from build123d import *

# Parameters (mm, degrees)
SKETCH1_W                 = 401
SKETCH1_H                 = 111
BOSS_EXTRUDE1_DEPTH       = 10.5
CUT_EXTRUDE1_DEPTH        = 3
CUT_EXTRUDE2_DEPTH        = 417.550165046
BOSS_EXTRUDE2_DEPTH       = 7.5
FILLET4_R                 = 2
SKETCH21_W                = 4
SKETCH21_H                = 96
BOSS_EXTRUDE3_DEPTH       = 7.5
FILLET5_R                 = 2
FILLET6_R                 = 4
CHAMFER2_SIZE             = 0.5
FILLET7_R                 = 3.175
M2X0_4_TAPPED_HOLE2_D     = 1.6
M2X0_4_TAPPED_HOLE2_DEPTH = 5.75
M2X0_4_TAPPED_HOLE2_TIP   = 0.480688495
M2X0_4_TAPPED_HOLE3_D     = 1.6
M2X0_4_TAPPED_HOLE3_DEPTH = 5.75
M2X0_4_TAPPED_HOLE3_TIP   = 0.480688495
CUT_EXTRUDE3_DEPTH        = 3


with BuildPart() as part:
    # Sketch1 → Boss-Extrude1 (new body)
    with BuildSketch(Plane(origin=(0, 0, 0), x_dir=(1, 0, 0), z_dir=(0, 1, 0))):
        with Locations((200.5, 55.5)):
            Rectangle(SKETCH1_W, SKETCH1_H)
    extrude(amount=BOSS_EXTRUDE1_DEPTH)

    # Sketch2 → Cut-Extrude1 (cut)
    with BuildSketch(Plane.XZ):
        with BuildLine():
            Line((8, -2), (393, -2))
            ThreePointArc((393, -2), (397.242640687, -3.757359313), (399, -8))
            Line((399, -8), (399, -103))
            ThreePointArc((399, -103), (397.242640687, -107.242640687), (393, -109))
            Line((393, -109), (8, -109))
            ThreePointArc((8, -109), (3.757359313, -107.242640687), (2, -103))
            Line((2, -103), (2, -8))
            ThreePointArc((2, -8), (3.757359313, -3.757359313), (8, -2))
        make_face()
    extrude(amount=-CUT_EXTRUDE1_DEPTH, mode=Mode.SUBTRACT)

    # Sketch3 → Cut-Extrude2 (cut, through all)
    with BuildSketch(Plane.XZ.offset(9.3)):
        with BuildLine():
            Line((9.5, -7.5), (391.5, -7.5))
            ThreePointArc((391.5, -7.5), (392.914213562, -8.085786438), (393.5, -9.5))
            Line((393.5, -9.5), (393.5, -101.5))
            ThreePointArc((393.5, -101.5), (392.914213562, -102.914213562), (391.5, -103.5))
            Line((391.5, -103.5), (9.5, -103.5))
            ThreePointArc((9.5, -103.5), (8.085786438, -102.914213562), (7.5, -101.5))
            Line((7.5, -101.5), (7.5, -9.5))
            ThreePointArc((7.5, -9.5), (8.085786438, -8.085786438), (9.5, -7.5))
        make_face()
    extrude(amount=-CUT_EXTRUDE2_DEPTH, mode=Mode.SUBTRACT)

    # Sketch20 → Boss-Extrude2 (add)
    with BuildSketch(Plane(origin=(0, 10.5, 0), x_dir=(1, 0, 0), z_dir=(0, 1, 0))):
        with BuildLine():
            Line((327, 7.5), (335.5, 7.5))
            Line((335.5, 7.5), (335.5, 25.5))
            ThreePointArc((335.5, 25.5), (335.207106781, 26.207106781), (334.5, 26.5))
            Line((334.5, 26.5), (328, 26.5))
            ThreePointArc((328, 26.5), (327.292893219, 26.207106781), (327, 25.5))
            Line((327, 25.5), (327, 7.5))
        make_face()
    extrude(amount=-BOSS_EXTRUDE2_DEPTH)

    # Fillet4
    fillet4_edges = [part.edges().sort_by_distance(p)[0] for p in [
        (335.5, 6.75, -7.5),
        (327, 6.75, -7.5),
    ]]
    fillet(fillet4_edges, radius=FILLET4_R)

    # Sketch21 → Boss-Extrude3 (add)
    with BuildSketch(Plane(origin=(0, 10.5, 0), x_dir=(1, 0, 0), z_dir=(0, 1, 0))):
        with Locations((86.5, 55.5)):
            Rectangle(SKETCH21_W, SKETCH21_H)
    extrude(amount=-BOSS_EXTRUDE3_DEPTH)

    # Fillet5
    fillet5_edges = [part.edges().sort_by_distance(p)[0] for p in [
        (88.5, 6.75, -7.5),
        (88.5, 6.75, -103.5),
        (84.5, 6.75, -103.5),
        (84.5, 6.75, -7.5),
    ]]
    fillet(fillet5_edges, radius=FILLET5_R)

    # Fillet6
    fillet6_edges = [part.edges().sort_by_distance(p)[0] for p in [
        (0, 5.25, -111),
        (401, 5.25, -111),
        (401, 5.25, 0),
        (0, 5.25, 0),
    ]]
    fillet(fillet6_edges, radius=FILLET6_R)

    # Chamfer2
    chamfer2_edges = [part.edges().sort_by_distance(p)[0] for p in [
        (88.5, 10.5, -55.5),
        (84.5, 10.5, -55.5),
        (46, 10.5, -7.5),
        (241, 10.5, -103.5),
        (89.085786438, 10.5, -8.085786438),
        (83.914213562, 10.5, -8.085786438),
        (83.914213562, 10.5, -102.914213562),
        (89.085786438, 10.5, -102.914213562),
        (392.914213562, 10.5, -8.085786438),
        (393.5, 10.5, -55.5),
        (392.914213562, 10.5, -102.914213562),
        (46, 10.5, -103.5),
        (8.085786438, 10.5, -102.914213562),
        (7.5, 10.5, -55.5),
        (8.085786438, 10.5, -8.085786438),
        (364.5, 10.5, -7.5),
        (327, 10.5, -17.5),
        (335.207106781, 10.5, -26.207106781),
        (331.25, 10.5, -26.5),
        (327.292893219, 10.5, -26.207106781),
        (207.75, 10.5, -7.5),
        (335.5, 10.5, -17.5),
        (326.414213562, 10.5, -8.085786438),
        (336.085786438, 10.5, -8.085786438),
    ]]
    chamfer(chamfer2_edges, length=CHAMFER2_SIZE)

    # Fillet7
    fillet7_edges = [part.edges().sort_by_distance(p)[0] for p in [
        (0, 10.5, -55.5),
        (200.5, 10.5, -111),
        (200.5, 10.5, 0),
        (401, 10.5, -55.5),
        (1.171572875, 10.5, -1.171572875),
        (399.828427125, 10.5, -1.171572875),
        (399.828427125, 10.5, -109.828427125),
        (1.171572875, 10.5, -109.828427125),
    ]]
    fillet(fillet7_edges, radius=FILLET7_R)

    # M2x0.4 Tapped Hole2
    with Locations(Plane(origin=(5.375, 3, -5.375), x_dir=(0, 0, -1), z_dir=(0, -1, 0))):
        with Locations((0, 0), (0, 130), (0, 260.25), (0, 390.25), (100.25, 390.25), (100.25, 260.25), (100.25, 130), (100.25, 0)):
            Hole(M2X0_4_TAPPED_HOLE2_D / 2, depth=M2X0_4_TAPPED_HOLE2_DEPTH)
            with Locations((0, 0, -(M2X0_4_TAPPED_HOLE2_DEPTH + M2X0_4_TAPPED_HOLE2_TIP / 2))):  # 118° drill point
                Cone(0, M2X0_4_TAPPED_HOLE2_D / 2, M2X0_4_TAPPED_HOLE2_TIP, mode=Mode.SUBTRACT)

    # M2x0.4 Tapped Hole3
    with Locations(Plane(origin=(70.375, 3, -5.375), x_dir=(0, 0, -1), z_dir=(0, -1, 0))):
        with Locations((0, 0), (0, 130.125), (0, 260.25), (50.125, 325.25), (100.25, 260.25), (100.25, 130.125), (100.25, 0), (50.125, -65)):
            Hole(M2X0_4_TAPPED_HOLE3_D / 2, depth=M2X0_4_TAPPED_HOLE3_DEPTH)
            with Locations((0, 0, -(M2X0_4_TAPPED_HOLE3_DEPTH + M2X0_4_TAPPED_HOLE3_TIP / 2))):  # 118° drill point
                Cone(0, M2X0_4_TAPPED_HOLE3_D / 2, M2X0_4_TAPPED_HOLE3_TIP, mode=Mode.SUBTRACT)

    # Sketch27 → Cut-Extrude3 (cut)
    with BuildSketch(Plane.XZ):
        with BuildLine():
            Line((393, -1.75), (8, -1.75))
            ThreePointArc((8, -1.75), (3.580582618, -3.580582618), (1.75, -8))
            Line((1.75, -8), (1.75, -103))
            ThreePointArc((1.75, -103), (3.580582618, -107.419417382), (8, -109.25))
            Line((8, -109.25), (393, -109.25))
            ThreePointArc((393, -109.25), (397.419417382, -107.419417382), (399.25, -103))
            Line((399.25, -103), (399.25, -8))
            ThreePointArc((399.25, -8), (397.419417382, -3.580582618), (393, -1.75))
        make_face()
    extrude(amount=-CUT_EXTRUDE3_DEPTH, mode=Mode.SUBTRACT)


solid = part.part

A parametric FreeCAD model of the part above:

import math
import FreeCAD as App
import Part
import Sketcher
from FreeCAD import Vector
Q = App.Units.Quantity


def edges_at(feature, points):
    """Names of the edges that pass closest to the given points."""
    edges = feature.Shape.Edges
    near = lambda p: min(range(len(edges)), key=lambda i: edges[i].distToShape(Part.Vertex(*p))[0])
    return sorted({f"Edge{near(p) + 1}" for p in points})


def add_polygon(sketch, points):
    """Adds a closed chain of lines whose ends are joined by coincident constraints."""
    first, n = sketch.GeometryCount, len(points)
    for a, b in zip(points, points[1:] + points[:1]):
        sketch.addGeometry(Part.LineSegment(App.Vector(*a, 0), App.Vector(*b, 0)), False)
    for i in range(n):
        sketch.addConstraint(Sketcher.Constraint("Coincident", first + i, 2, first + (i + 1) % n, 1))

doc = App.newDocument("Part")
body = doc.addObject("PartDesign::Body", "Body")

# Sketch on XZ plane
sketch1 = doc.addObject("Sketcher::SketchObject", "Sketch")
body.addObject(sketch1)
sketch1.AttachmentSupport = (doc.XZ_Plane, [""])
sketch1.MapMode = "FlatFace"
add_polygon(sketch1, [(0, -111), (0, 0), (401, 0), (401, -111)])  # lines 0-3
sketch1.addConstraint([
    Sketcher.Constraint("Vertical", 0),
    Sketcher.Constraint("Horizontal", 1),
    Sketcher.Constraint("Vertical", 2),
    Sketcher.Constraint("Horizontal", 3),
    Sketcher.Constraint("Coincident", 0, 2, -1, 1),
    Sketcher.Constraint("DistanceX", 1, 1, 1, 2, Q("401 mm")),
    Sketcher.Constraint("DistanceY", 0, 1, 0, 2, Q("111 mm")),
])
pad1 = doc.addObject("PartDesign::Pad", "Pad")
body.addObject(pad1)
pad1.Profile = sketch1
pad1.Length = 10.5
pad1.Reversed = True

# Sketch on XZ plane
sketch2 = doc.addObject("Sketcher::SketchObject", "Sketch001")
body.addObject(sketch2)
sketch2.AttachmentSupport = (doc.XZ_Plane, [""])
sketch2.MapMode = "FlatFace"
sketch2.addGeometry([
    Part.LineSegment(Vector(393, -2, 0), Vector(8, -2, 0)),  # 0
    Part.ArcOfCircle(Part.Circle(Vector(8, -8, 0), Vector(0, 0, 1), 6), math.radians(90), math.radians(180)),  # 1
    Part.LineSegment(Vector(2, -8, 0), Vector(2, -103, 0)),  # 2
    Part.ArcOfCircle(Part.Circle(Vector(8, -103, 0), Vector(0, 0, 1), 6), math.radians(180), math.radians(270)),  # 3
    Part.LineSegment(Vector(8, -109, 0), Vector(393, -109, 0)),  # 4
    Part.ArcOfCircle(Part.Circle(Vector(393, -103, 0), Vector(0, 0, 1), 6), math.radians(-90), math.radians(0)),  # 5
    Part.LineSegment(Vector(399, -103, 0), Vector(399, -8, 0)),  # 6
    Part.ArcOfCircle(Part.Circle(Vector(393, -8, 0), Vector(0, 0, 1), 6), math.radians(0), math.radians(90)),  # 7
], False)
sketch2.addConstraint([
    Sketcher.Constraint("Tangent", 0, 2, 1, 1),
    Sketcher.Constraint("Tangent", 1, 2, 2, 1),
    Sketcher.Constraint("Tangent", 2, 2, 3, 1),
    Sketcher.Constraint("Tangent", 3, 2, 4, 1),
    Sketcher.Constraint("Tangent", 4, 2, 5, 1),
    Sketcher.Constraint("Tangent", 5, 2, 6, 1),
    Sketcher.Constraint("Tangent", 6, 2, 7, 1),
    Sketcher.Constraint("Tangent", 7, 2, 0, 1),
    Sketcher.Constraint("Horizontal", 0),
    Sketcher.Constraint("Vertical", 2),
    Sketcher.Constraint("Horizontal", 4),
    Sketcher.Constraint("Vertical", 6),
    Sketcher.Constraint("Equal", 1, 3),
    Sketcher.Constraint("Equal", 3, 5),
    Sketcher.Constraint("Equal", 5, 7),
    Sketcher.Constraint("Radius", 1, Q("6 mm")),
    Sketcher.Constraint("DistanceX", 0, 2, 0, 1, Q("385 mm")),
    Sketcher.Constraint("DistanceY", 2, 2, 2, 1, Q("95 mm")),
    Sketcher.Constraint("DistanceX", -1, 1, 1, 3, Q("8 mm")),
    Sketcher.Constraint("DistanceY", 1, 3, -1, 1, Q("8 mm")),
])
pocket1 = doc.addObject("PartDesign::Pocket", "Pocket")
body.addObject(pocket1)
pocket1.Profile = sketch2
pocket1.Length = 3

# Sketch on XZ plane
sketch3 = doc.addObject("Sketcher::SketchObject", "Sketch002")
body.addObject(sketch3)
sketch3.AttachmentSupport = (doc.XZ_Plane, [""])
sketch3.MapMode = "FlatFace"
sketch3.AttachmentOffset = App.Placement(Vector(0, 0, 9.3), App.Rotation())
sketch3.addGeometry([
    Part.LineSegment(Vector(391.5, -7.5, 0), Vector(9.5, -7.5, 0)),  # 0
    Part.ArcOfCircle(Part.Circle(Vector(9.5, -9.5, 0), Vector(0, 0, 1), 2), math.radians(90), math.radians(180)),  # 1
    Part.LineSegment(Vector(7.5, -9.5, 0), Vector(7.5, -101.5, 0)),  # 2
    Part.ArcOfCircle(Part.Circle(Vector(9.5, -101.5, 0), Vector(0, 0, 1), 2), math.radians(-180), math.radians(-90)),  # 3
    Part.LineSegment(Vector(9.5, -103.5, 0), Vector(391.5, -103.5, 0)),  # 4
    Part.ArcOfCircle(Part.Circle(Vector(391.5, -101.5, 0), Vector(0, 0, 1), 2), math.radians(-90), math.radians(0)),  # 5
    Part.LineSegment(Vector(393.5, -101.5, 0), Vector(393.5, -9.5, 0)),  # 6
    Part.ArcOfCircle(Part.Circle(Vector(391.5, -9.5, 0), Vector(0, 0, 1), 2), math.radians(0), math.radians(90)),  # 7
], False)
sketch3.addConstraint([
    Sketcher.Constraint("Tangent", 0, 2, 1, 1),
    Sketcher.Constraint("Tangent", 1, 2, 2, 1),
    Sketcher.Constraint("Tangent", 2, 2, 3, 1),
    Sketcher.Constraint("Tangent", 3, 2, 4, 1),
    Sketcher.Constraint("Tangent", 4, 2, 5, 1),
    Sketcher.Constraint("Tangent", 5, 2, 6, 1),
    Sketcher.Constraint("Tangent", 6, 2, 7, 1),
    Sketcher.Constraint("Tangent", 7, 2, 0, 1),
    Sketcher.Constraint("Horizontal", 0),
    Sketcher.Constraint("Vertical", 2),
    Sketcher.Constraint("Horizontal", 4),
    Sketcher.Constraint("Vertical", 6),
    Sketcher.Constraint("Equal", 1, 3),
    Sketcher.Constraint("Equal", 3, 5),
    Sketcher.Constraint("Equal", 5, 7),
    Sketcher.Constraint("Radius", 1, Q("2 mm")),
    Sketcher.Constraint("DistanceX", 0, 2, 0, 1, Q("382 mm")),
    Sketcher.Constraint("DistanceY", 2, 2, 2, 1, Q("92 mm")),
    Sketcher.Constraint("DistanceX", -1, 1, 1, 3, Q("9.5 mm")),
    Sketcher.Constraint("DistanceY", 1, 3, -1, 1, Q("9.5 mm")),
])
pocket2 = doc.addObject("PartDesign::Pocket", "Pocket001")
body.addObject(pocket2)
pocket2.Profile = sketch3
pocket2.Type = "ThroughAll"

# Sketch on XZ plane
sketch4 = doc.addObject("Sketcher::SketchObject", "Sketch003")
body.addObject(sketch4)
sketch4.AttachmentSupport = (doc.XZ_Plane, [""])
sketch4.MapMode = "FlatFace"
sketch4.AttachmentOffset = App.Placement(Vector(0, 0, -10.5), App.Rotation())
sketch4.addGeometry([
    Part.LineSegment(Vector(327, -7.5, 0), Vector(335.5, -7.5, 0)),  # 0
    Part.LineSegment(Vector(335.5, -7.5, 0), Vector(335.5, -25.5, 0)),  # 1
    Part.ArcOfCircle(Part.Circle(Vector(334.5, -25.5, 0), Vector(0, 0, 1), 1), math.radians(-90), math.radians(0)),  # 2
    Part.LineSegment(Vector(334.5, -26.5, 0), Vector(328, -26.5, 0)),  # 3
    Part.ArcOfCircle(Part.Circle(Vector(328, -25.5, 0), Vector(0, 0, 1), 1), math.radians(-180), math.radians(-90)),  # 4
    Part.LineSegment(Vector(327, -25.5, 0), Vector(327, -7.5, 0)),  # 5
], False)
sketch4.addConstraint([
    Sketcher.Constraint("Coincident", 0, 2, 1, 1),
    Sketcher.Constraint("Tangent", 1, 2, 2, 2),
    Sketcher.Constraint("Tangent", 2, 1, 3, 1),
    Sketcher.Constraint("Tangent", 3, 2, 4, 2),
    Sketcher.Constraint("Tangent", 4, 1, 5, 1),
    Sketcher.Constraint("Coincident", 5, 2, 0, 1),
    Sketcher.Constraint("Horizontal", 0),
    Sketcher.Constraint("Vertical", 1),
    Sketcher.Constraint("Horizontal", 3),
    Sketcher.Constraint("Vertical", 5),
    Sketcher.Constraint("Equal", 2, 4),
    Sketcher.Constraint("Radius", 2, Q("1 mm")),
    Sketcher.Constraint("DistanceY", 1, 2, 1, 1, Q("18 mm")),
    Sketcher.Constraint("DistanceX", 0, 1, 0, 2, Q("8.5 mm")),
    Sketcher.Constraint("DistanceX", -1, 1, 4, 3, Q("328 mm")),
    Sketcher.Constraint("DistanceY", 2, 3, -1, 1, Q("25.5 mm")),
])
pad2 = doc.addObject("PartDesign::Pad", "Pad001")
body.addObject(pad2)
pad2.Profile = sketch4
pad2.Length = 7.5
doc.recompute()

fillet = doc.addObject("PartDesign::Fillet", "Fillet")
body.addObject(fillet)
fillet.Base = (pad2, edges_at(pad2, [(335.5, 6.75, -7.5), (327, 6.75, -7.5)]))
fillet.Radius = 2

# Sketch on XZ plane
sketch5 = doc.addObject("Sketcher::SketchObject", "Sketch004")
body.addObject(sketch5)
sketch5.AttachmentSupport = (doc.XZ_Plane, [""])
sketch5.MapMode = "FlatFace"
sketch5.AttachmentOffset = App.Placement(Vector(0, 0, -10.5), App.Rotation())
add_polygon(sketch5, [(84.5, -103.5), (84.5, -7.5), (88.5, -7.5), (88.5, -103.5)])  # lines 0-3
sketch5.addConstraint([
    Sketcher.Constraint("Vertical", 0),
    Sketcher.Constraint("Horizontal", 1),
    Sketcher.Constraint("Vertical", 2),
    Sketcher.Constraint("Horizontal", 3),
    Sketcher.Constraint("DistanceX", 1, 1, 1, 2, Q("4 mm")),
    Sketcher.Constraint("DistanceY", 0, 1, 0, 2, Q("96 mm")),
    Sketcher.Constraint("DistanceX", -1, 1, 0, 2, Q("84.5 mm")),
    Sketcher.Constraint("DistanceY", 0, 2, -1, 1, Q("7.5 mm")),
])
pad3 = doc.addObject("PartDesign::Pad", "Pad002")
body.addObject(pad3)
pad3.Profile = sketch5
pad3.Length = 7.5
doc.recompute()

fillet2 = doc.addObject("PartDesign::Fillet", "Fillet001")
body.addObject(fillet2)
fillet2.Base = (pad3, edges_at(pad3, [
    (88.5, 6.75, -7.5),
    (88.5, 6.75, -103.5),
    (84.5, 6.75, -103.5),
    (84.5, 6.75, -7.5),
]))
fillet2.Radius = 2
doc.recompute()

fillet3 = doc.addObject("PartDesign::Fillet", "Fillet002")
body.addObject(fillet3)
fillet3.Base = (fillet2, edges_at(fillet2, [
    (0, 5.25, -111),
    (401, 5.25, -111),
    (401, 5.25, 0),
    (0, 5.25, 0),
]))
fillet3.Radius = 4
doc.recompute()

chamfer = doc.addObject("PartDesign::Chamfer", "Chamfer")
body.addObject(chamfer)
chamfer.Base = (fillet3, edges_at(fillet3, [
    (88.5, 10.5, -55.5),
    (84.5, 10.5, -55.5),
    (46, 10.5, -7.5),
    (241, 10.5, -103.5),
    (89.086, 10.5, -8.086),
    (83.914, 10.5, -8.086),
    (83.914, 10.5, -102.914),
    (89.086, 10.5, -102.914),
    (392.914, 10.5, -8.086),
    (393.5, 10.5, -55.5),
    (392.914, 10.5, -102.914),
    (46, 10.5, -103.5),
    (8.086, 10.5, -102.914),
    (7.5, 10.5, -55.5),
    (8.086, 10.5, -8.086),
    (364.5, 10.5, -7.5),
    (327, 10.5, -17.5),
    (335.207, 10.5, -26.207),
    (331.25, 10.5, -26.5),
    (327.293, 10.5, -26.207),
    (207.75, 10.5, -7.5),
    (335.5, 10.5, -17.5),
    (326.414, 10.5, -8.086),
    (336.086, 10.5, -8.086),
]))
chamfer.Size = 0.5
doc.recompute()

fillet4 = doc.addObject("PartDesign::Fillet", "Fillet003")
body.addObject(fillet4)
fillet4.Base = (chamfer, edges_at(chamfer, [
    (0, 10.5, -55.5),
    (200.5, 10.5, -111),
    (200.5, 10.5, 0),
    (401, 10.5, -55.5),
    (1.172, 10.5, -1.172),
    (399.828, 10.5, -1.172),
    (399.828, 10.5, -109.828),
    (1.172, 10.5, -109.828),
]))
fillet4.Radius = 3.175

# Sketch on XZ plane
sketch6 = doc.addObject("Sketcher::SketchObject", "Sketch005")
body.addObject(sketch6)
sketch6.AttachmentSupport = (doc.XZ_Plane, [""])
sketch6.MapMode = "FlatFace"
sketch6.AttachmentOffset = App.Placement(Vector(0, 0, -3), App.Rotation())
sketch6.addGeometry([
    Part.Circle(Vector(5.4, -5.4, 0), Vector(0, 0, 1), 0.8),  # 0
    Part.Circle(Vector(135.4, -5.4, 0), Vector(0, 0, 1), 0.8),  # 1
    Part.Circle(Vector(265.6, -5.4, 0), Vector(0, 0, 1), 0.8),  # 2
    Part.Circle(Vector(395.6, -5.4, 0), Vector(0, 0, 1), 0.8),  # 3
    Part.Circle(Vector(395.6, -105.6, 0), Vector(0, 0, 1), 0.8),  # 4
    Part.Circle(Vector(265.6, -105.6, 0), Vector(0, 0, 1), 0.8),  # 5
    Part.Circle(Vector(135.4, -105.6, 0), Vector(0, 0, 1), 0.8),  # 6
    Part.Circle(Vector(5.4, -105.6, 0), Vector(0, 0, 1), 0.8),  # 7
], False)
sketch6.addConstraint([
    Sketcher.Constraint("Equal", 0, 1),
    Sketcher.Constraint("Equal", 1, 2),
    Sketcher.Constraint("Equal", 2, 3),
    Sketcher.Constraint("Equal", 3, 4),
    Sketcher.Constraint("Equal", 4, 5),
    Sketcher.Constraint("Equal", 5, 6),
    Sketcher.Constraint("Equal", 6, 7),
    Sketcher.Constraint("Horizontal", 0, 3, 1, 3),
    Sketcher.Constraint("Horizontal", 1, 3, 2, 3),
    Sketcher.Constraint("Horizontal", 2, 3, 3, 3),
    Sketcher.Constraint("Horizontal", 4, 3, 5, 3),
    Sketcher.Constraint("Horizontal", 5, 3, 6, 3),
    Sketcher.Constraint("Horizontal", 6, 3, 7, 3),
    Sketcher.Constraint("Vertical", 3, 3, 4, 3),
    Sketcher.Constraint("Vertical", 2, 3, 5, 3),
    Sketcher.Constraint("Vertical", 1, 3, 6, 3),
    Sketcher.Constraint("Vertical", 0, 3, 7, 3),
    Sketcher.Constraint("Diameter", 0, Q("1.6 mm")),
    Sketcher.Constraint("DistanceX", 0, 3, 1, 3, Q("130 mm")),
    Sketcher.Constraint("DistanceX", 2, 3, 3, 3, Q("130 mm")),
    Sketcher.Constraint("DistanceX", 1, 3, 2, 3, Q("130.25 mm")),
    Sketcher.Constraint("DistanceY", 4, 3, 3, 3, Q("100.25 mm")),
    Sketcher.Constraint("DistanceX", -1, 1, 0, 3, Q("5.375 mm")),
    Sketcher.Constraint("DistanceY", 0, 3, -1, 1, Q("5.375 mm")),
])
doc.recompute()
hole = doc.addObject("PartDesign::Hole", "Hole")
body.addObject(hole)
hole.Profile = sketch6
hole.ThreadType = "None"
hole.Diameter = 1.6
hole.DepthType = "Dimension"
hole.Depth = 5.75
hole.DrillPoint = "Angled"
hole.DrillPointAngle = 118

# Sketch on XZ plane
sketch7 = doc.addObject("Sketcher::SketchObject", "Sketch006")
body.addObject(sketch7)
sketch7.AttachmentSupport = (doc.XZ_Plane, [""])
sketch7.MapMode = "FlatFace"
sketch7.AttachmentOffset = App.Placement(Vector(0, 0, -3), App.Rotation())
sketch7.addGeometry([
    Part.Circle(Vector(70.4, -5.4, 0), Vector(0, 0, 1), 0.8),  # 0
    Part.Circle(Vector(200.5, -5.4, 0), Vector(0, 0, 1), 0.8),  # 1
    Part.Circle(Vector(330.6, -5.4, 0), Vector(0, 0, 1), 0.8),  # 2
    Part.Circle(Vector(395.6, -55.5, 0), Vector(0, 0, 1), 0.8),  # 3
    Part.Circle(Vector(330.6, -105.6, 0), Vector(0, 0, 1), 0.8),  # 4
    Part.Circle(Vector(200.5, -105.6, 0), Vector(0, 0, 1), 0.8),  # 5
    Part.Circle(Vector(70.4, -105.6, 0), Vector(0, 0, 1), 0.8),  # 6
    Part.Circle(Vector(5.4, -55.5, 0), Vector(0, 0, 1), 0.8),  # 7
], False)
sketch7.addConstraint([
    Sketcher.Constraint("Equal", 0, 1),
    Sketcher.Constraint("Equal", 1, 2),
    Sketcher.Constraint("Equal", 2, 3),
    Sketcher.Constraint("Equal", 3, 4),
    Sketcher.Constraint("Equal", 4, 5),
    Sketcher.Constraint("Equal", 5, 6),
    Sketcher.Constraint("Equal", 6, 7),
    Sketcher.Constraint("Horizontal", 0, 3, 1, 3),
    Sketcher.Constraint("Horizontal", 1, 3, 2, 3),
    Sketcher.Constraint("Horizontal", 4, 3, 5, 3),
    Sketcher.Constraint("Horizontal", 5, 3, 6, 3),
    Sketcher.Constraint("Horizontal", 3, 3, 7, 3),
    Sketcher.Constraint("Vertical", 2, 3, 4, 3),
    Sketcher.Constraint("Vertical", 1, 3, 5, 3),
    Sketcher.Constraint("Vertical", 0, 3, 6, 3),
    Sketcher.Constraint("Diameter", 0, Q("1.6 mm")),
    Sketcher.Constraint("DistanceX", 2, 3, 3, 3, Q("65 mm")),
    Sketcher.Constraint("DistanceX", 7, 3, 0, 3, Q("65 mm")),
    Sketcher.Constraint("DistanceX", -1, 1, 1, 3, Q("200.5 mm")),
    Sketcher.Constraint("DistanceY", 3, 3, -1, 1, Q("55.5 mm")),
    Sketcher.Constraint("DistanceX", 0, 3, 2, 3, Q("260.25 mm")),
    Sketcher.Constraint("DistanceY", 4, 3, 2, 3, Q("100.25 mm")),
    Sketcher.Constraint("DistanceX", -1, 1, 0, 3, Q("70.375 mm")),
    Sketcher.Constraint("DistanceY", 0, 3, -1, 1, Q("5.375 mm")),
])
doc.recompute()
hole2 = doc.addObject("PartDesign::Hole", "Hole001")
body.addObject(hole2)
hole2.Profile = sketch7
hole2.ThreadType = "None"
hole2.Diameter = 1.6
hole2.DepthType = "Dimension"
hole2.Depth = 5.75
hole2.DrillPoint = "Angled"
hole2.DrillPointAngle = 118

# Sketch on XZ plane
sketch8 = doc.addObject("Sketcher::SketchObject", "Sketch007")
body.addObject(sketch8)
sketch8.AttachmentSupport = (doc.XZ_Plane, [""])
sketch8.MapMode = "FlatFace"
sketch8.addGeometry([
    Part.LineSegment(Vector(393, -2, 0), Vector(8, -2, 0)),  # 0
    Part.ArcOfCircle(Part.Circle(Vector(8, -8, 0), Vector(0, 0, 1), 6), math.radians(90), math.radians(180)),  # 1
    Part.LineSegment(Vector(2, -8, 0), Vector(2, -103, 0)),  # 2
    Part.ArcOfCircle(Part.Circle(Vector(8, -103, 0), Vector(0, 0, 1), 6), math.radians(-180), math.radians(-90)),  # 3
    Part.LineSegment(Vector(8, -109, 0), Vector(393, -109, 0)),  # 4
    Part.ArcOfCircle(Part.Circle(Vector(393, -103, 0), Vector(0, 0, 1), 6), math.radians(-90), math.radians(0)),  # 5
    Part.LineSegment(Vector(399, -103, 0), Vector(399, -8, 0)),  # 6
    Part.ArcOfCircle(Part.Circle(Vector(393, -8, 0), Vector(0, 0, 1), 6), math.radians(0), math.radians(90)),  # 7
], False)
sketch8.addConstraint([
    Sketcher.Constraint("Tangent", 0, 2, 1, 1),
    Sketcher.Constraint("Tangent", 1, 2, 2, 1),
    Sketcher.Constraint("Tangent", 2, 2, 3, 1),
    Sketcher.Constraint("Tangent", 3, 2, 4, 1),
    Sketcher.Constraint("Tangent", 4, 2, 5, 1),
    Sketcher.Constraint("Tangent", 5, 2, 6, 1),
    Sketcher.Constraint("Tangent", 6, 2, 7, 1),
    Sketcher.Constraint("Tangent", 7, 2, 0, 1),
    Sketcher.Constraint("Horizontal", 0),
    Sketcher.Constraint("Vertical", 2),
    Sketcher.Constraint("Horizontal", 4),
    Sketcher.Constraint("Vertical", 6),
    Sketcher.Constraint("Equal", 1, 3),
    Sketcher.Constraint("Equal", 3, 5),
    Sketcher.Constraint("Equal", 5, 7),
    Sketcher.Constraint("DistanceX", 0, 2, 0, 1, Q("385 mm")),
    Sketcher.Constraint("DistanceY", 2, 2, 2, 1, Q("95 mm")),
    Sketcher.Constraint("Radius", 1, Q("6.25 mm")),
    Sketcher.Constraint("DistanceX", -1, 1, 1, 3, Q("8 mm")),
    Sketcher.Constraint("DistanceY", 1, 3, -1, 1, Q("8 mm")),
])
pocket3 = doc.addObject("PartDesign::Pocket", "Pocket002")
body.addObject(pocket3)
pocket3.Profile = sketch8
pocket3.Length = 3

doc.recompute()
